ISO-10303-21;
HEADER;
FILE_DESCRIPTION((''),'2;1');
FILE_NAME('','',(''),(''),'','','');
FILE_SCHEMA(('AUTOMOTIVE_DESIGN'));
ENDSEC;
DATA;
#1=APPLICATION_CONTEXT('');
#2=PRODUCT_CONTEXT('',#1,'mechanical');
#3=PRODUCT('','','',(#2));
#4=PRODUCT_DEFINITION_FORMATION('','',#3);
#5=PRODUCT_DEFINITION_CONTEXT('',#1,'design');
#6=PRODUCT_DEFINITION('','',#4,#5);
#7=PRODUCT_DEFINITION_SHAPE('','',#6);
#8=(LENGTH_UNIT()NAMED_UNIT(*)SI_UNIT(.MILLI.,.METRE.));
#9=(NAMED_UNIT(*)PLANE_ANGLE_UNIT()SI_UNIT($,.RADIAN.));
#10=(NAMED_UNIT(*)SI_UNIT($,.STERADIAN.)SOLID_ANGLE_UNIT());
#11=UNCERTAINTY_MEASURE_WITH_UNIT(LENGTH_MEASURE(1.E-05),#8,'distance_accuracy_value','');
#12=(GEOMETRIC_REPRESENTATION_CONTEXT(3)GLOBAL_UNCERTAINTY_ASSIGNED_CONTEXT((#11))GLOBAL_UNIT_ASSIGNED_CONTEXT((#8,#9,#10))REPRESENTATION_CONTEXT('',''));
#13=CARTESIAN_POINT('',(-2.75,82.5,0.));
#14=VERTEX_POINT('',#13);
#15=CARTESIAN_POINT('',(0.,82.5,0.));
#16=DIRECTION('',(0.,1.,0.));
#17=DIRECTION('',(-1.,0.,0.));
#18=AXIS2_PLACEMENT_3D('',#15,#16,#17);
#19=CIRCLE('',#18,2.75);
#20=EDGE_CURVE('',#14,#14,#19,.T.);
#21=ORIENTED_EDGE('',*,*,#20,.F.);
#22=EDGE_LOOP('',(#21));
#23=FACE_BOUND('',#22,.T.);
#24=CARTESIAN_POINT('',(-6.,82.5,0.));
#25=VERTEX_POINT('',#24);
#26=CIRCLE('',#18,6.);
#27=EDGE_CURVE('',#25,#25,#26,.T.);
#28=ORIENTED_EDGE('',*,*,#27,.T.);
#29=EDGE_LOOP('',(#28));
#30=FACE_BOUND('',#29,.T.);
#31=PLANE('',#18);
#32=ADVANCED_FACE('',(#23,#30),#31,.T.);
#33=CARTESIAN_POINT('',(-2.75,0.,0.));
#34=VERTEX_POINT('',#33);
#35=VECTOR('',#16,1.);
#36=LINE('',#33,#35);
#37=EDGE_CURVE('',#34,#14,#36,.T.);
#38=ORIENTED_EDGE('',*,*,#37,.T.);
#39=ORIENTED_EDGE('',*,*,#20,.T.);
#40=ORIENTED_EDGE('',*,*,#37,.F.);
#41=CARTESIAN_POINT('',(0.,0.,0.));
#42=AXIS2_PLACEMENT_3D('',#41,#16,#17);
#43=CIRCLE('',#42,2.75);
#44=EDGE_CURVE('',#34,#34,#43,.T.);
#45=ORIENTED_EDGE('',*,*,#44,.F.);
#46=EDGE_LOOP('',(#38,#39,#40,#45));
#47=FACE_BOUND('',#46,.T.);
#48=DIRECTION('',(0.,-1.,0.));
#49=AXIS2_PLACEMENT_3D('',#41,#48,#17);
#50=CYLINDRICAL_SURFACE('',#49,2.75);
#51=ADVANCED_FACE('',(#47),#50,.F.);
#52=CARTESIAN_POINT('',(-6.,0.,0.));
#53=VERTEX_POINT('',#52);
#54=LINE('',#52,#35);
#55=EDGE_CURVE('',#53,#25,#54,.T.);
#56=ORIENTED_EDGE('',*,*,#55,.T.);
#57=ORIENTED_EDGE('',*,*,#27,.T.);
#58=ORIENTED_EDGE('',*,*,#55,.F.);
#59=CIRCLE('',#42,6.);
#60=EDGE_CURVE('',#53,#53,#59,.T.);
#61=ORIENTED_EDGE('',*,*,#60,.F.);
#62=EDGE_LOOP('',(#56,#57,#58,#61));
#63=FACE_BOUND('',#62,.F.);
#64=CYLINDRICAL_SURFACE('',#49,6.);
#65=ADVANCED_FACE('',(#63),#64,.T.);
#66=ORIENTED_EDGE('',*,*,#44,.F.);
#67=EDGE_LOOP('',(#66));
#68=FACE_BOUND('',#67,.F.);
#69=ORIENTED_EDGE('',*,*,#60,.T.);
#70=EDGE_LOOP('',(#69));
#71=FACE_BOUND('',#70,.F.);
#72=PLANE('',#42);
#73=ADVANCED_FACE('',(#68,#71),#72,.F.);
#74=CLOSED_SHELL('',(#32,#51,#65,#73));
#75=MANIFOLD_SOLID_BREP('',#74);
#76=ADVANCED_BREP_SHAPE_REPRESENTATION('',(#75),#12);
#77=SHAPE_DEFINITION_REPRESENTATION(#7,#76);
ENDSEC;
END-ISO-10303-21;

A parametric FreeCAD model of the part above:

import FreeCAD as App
import Part
import Sketcher
Q = App.Units.Quantity

doc = App.newDocument("Part")
body = doc.addObject("PartDesign::Body", "Body")

sketch1 = body.newObject("Sketcher::SketchObject", "Sketch")
sketch1.AttachmentSupport = (doc.getObject("XZ_Plane"), [""])
sketch1.MapMode = "FlatFace"
sketch1.addGeometry([
    Part.Circle(App.Vector(0, 0, 0), App.Vector(0, 0, 1), 6),
    Part.Circle(App.Vector(0, 0, 0), App.Vector(0, 0, 1), 2.8),
], False)
sketch1.addConstraint([
    Sketcher.Constraint("Coincident", 0, 3, -1, 1),
    Sketcher.Constraint("Coincident", 1, 3, -1, 1),
    Sketcher.Constraint("Diameter", 0, Q("12 mm")),
    Sketcher.Constraint("Diameter", 1, Q("5.5 mm")),
])
pad1 = body.newObject("PartDesign::Pad", "Pad")
pad1.Profile = sketch1
pad1.Length = 82.5
pad1.Reversed = True

doc.recompute()
